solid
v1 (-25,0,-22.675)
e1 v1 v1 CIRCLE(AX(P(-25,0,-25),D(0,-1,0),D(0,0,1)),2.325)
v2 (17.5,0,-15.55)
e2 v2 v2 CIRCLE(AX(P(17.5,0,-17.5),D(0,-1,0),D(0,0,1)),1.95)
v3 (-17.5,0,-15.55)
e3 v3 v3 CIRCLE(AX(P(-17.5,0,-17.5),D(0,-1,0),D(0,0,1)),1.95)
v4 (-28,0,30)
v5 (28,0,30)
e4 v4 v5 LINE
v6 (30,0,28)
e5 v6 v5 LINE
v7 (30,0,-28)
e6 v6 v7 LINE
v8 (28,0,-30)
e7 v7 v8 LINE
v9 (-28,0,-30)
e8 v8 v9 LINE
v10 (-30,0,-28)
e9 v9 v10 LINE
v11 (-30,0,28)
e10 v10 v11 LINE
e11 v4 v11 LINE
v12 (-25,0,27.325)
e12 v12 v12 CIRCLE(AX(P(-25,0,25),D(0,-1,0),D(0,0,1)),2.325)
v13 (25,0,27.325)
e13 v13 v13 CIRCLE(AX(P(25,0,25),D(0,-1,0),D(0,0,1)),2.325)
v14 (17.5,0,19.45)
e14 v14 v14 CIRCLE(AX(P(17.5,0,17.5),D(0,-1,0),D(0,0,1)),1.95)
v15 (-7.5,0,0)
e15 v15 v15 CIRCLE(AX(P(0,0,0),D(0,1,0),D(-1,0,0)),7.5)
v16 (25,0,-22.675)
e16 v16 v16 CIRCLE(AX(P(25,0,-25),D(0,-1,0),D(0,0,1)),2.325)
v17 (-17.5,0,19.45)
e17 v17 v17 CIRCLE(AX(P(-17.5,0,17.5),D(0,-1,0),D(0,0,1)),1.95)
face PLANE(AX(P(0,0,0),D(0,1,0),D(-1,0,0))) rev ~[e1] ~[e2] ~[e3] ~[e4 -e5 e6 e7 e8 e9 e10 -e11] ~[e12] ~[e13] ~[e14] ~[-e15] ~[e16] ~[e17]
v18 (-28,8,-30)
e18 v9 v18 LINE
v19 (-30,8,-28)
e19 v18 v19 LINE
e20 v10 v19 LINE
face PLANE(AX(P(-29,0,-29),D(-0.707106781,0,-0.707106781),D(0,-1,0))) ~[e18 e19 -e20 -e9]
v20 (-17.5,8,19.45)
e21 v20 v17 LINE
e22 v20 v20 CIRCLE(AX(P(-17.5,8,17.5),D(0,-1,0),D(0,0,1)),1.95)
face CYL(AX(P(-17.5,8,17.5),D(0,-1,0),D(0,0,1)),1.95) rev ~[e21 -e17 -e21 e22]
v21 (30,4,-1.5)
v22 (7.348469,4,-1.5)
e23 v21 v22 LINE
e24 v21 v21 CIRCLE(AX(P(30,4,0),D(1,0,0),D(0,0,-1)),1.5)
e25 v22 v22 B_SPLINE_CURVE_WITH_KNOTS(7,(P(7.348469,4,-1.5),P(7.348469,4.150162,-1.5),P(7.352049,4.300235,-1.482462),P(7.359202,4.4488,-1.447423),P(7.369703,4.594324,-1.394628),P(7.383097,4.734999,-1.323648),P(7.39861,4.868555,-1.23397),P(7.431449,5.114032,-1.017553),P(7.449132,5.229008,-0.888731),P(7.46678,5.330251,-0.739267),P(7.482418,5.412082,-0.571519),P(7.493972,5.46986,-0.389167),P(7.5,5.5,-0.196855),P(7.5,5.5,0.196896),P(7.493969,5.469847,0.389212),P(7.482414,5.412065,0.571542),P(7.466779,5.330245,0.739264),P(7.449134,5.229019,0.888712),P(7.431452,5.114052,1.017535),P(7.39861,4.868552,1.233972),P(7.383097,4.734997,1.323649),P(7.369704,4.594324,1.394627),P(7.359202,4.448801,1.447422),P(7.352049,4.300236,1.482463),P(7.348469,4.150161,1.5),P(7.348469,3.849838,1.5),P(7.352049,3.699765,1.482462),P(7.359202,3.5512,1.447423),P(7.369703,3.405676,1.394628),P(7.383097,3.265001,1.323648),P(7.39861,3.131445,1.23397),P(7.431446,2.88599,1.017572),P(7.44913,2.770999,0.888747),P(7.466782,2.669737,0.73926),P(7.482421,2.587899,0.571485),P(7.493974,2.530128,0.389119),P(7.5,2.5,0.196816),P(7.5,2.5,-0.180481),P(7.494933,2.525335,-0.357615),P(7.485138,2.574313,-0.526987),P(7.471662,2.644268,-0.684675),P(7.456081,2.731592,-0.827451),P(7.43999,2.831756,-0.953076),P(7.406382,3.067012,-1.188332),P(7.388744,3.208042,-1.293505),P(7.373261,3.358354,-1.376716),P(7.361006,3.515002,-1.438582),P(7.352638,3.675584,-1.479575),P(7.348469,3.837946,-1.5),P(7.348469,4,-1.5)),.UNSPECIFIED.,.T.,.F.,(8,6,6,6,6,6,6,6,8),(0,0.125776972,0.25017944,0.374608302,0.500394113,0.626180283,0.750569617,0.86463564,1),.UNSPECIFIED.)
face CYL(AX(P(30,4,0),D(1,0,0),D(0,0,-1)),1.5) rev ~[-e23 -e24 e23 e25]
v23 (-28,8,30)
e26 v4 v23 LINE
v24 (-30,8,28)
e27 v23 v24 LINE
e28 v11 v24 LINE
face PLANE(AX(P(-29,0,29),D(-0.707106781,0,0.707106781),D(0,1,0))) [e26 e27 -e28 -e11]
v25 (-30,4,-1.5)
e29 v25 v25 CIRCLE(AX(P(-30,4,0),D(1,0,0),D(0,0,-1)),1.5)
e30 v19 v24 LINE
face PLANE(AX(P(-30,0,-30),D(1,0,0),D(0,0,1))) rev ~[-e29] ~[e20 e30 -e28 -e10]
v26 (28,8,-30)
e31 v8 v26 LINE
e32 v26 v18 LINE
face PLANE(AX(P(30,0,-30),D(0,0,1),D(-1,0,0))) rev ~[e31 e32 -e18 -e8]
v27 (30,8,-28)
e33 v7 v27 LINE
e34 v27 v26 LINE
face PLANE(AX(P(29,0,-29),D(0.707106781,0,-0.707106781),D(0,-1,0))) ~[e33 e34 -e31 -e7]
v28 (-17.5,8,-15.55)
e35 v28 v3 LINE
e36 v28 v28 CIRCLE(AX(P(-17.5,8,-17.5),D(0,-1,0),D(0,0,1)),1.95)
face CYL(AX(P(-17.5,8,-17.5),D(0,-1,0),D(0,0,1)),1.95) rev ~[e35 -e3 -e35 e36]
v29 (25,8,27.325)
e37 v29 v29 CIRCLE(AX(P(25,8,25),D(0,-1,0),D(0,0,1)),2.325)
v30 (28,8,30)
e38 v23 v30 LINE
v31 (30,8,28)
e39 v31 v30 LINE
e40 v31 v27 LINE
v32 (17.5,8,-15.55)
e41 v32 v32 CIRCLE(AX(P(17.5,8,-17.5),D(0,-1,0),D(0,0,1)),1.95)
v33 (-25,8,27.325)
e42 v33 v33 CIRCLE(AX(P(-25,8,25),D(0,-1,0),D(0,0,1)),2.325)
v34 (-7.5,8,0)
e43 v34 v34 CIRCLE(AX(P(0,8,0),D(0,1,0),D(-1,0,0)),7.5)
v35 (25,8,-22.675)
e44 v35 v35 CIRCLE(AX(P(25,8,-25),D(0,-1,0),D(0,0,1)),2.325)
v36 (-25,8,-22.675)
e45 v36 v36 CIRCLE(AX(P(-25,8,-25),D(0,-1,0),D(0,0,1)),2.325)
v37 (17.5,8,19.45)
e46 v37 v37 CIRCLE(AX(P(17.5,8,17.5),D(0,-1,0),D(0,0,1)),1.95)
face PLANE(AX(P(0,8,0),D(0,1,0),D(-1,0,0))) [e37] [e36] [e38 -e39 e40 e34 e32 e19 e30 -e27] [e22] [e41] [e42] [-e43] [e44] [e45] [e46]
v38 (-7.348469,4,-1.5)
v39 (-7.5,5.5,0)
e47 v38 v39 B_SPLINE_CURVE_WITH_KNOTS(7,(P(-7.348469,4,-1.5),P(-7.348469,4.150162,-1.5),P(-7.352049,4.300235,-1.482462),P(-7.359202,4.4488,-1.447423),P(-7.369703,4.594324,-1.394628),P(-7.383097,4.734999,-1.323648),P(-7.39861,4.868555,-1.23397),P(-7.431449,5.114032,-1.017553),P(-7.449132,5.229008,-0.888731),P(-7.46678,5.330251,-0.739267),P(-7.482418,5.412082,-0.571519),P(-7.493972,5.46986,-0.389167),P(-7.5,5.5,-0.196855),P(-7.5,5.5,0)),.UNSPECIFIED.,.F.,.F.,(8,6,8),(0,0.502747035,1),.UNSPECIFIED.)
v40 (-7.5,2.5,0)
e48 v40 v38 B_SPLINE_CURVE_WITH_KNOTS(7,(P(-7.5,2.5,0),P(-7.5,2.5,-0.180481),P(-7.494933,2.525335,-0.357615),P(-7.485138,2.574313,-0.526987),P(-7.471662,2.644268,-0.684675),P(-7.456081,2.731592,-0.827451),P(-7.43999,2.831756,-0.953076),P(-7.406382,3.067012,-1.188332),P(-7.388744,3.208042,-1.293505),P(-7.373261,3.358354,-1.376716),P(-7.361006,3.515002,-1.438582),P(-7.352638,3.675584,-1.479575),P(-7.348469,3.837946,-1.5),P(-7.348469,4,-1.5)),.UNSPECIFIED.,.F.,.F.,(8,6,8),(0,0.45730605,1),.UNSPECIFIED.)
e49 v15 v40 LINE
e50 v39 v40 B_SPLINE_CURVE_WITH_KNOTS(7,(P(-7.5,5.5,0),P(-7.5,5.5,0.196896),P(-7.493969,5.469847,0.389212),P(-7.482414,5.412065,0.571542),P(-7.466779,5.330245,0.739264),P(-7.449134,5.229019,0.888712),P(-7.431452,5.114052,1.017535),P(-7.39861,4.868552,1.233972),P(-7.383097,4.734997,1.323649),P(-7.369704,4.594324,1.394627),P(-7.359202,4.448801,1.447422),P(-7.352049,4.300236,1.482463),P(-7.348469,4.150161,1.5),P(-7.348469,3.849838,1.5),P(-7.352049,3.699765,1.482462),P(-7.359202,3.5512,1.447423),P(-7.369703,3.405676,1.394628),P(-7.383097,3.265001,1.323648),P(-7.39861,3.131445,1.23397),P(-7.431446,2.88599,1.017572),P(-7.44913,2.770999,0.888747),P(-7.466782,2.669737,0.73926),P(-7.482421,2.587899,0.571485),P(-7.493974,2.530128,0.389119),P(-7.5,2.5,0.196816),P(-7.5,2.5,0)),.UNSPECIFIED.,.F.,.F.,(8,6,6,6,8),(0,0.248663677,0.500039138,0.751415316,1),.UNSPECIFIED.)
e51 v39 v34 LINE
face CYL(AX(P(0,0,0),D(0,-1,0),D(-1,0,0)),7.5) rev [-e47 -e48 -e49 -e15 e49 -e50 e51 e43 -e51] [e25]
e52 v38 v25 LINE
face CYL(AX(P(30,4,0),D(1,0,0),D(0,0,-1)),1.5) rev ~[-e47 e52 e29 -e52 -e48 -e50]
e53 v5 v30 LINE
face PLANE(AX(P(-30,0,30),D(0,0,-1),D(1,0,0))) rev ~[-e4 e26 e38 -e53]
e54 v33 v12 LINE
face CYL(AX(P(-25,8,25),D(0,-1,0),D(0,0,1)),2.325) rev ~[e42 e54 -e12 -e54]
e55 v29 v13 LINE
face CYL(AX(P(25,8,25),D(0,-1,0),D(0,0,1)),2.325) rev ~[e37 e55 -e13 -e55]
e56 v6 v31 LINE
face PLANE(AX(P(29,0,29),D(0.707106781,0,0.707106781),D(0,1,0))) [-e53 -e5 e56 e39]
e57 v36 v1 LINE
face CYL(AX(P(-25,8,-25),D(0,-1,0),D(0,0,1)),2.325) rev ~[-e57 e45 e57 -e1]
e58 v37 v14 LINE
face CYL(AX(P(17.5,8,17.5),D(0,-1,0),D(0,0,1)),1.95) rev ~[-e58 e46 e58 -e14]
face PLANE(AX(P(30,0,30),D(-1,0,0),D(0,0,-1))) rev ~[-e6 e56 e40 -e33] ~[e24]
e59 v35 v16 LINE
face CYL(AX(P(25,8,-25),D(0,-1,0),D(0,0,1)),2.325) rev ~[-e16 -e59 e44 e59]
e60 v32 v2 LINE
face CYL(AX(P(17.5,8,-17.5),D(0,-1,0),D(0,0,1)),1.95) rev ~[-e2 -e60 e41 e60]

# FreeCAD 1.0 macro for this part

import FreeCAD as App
import Part
import Sketcher

V = App.Vector


def edges_at(feature, points):
    """Names of the edges that pass closest to the given points."""
    edges = feature.Shape.Edges
    near = lambda p: min(range(len(edges)), key=lambda i: edges[i].distToShape(Part.Vertex(*p))[0])
    return sorted({f"Edge{near(p) + 1}" for p in points})

doc = App.newDocument("Part")
body = doc.addObject("PartDesign::Body", "Body")

# Sketch on XZ plane
sketch1 = body.newObject("Sketcher::SketchObject", "Sketch")
sketch1.AttachmentSupport = (doc.getObject("XZ_Plane"), [""])
sketch1.MapMode = "FlatFace"
sketch1.addGeometry([
    Part.LineSegment(V(30, 30, 0), V(30, -30, 0)),  # 0
    Part.LineSegment(V(30, -30, 0), V(-30, -30, 0)),  # 1
    Part.LineSegment(V(-30, -30, 0), V(-30, 30, 0)),  # 2
    Part.LineSegment(V(-30, 30, 0), V(30, 30, 0)),  # 3
    Part.Circle(V(0, 0, 0), V(0, 0, 1), 8),  # 4
], False)
sketch1.addConstraint([
    Sketcher.Constraint("Coincident", 0, 2, 1, 1),
    Sketcher.Constraint("Coincident", 1, 2, 2, 1),
    Sketcher.Constraint("Coincident", 2, 2, 3, 1),
    Sketcher.Constraint("Coincident", 3, 2, 0, 1),
    Sketcher.Constraint("Vertical", 0),
    Sketcher.Constraint("Horizontal", 1),
    Sketcher.Constraint("Vertical", 2),
    Sketcher.Constraint("Horizontal", 3),
    Sketcher.Constraint("Coincident", 4, 3, -1, 1),
    Sketcher.Constraint("Symmetric", 0, 2, 2, 2, -1, 1),
    Sketcher.Constraint("Equal", 3, 0),
    Sketcher.Constraint("Diameter", 4, 15.0),
    Sketcher.Constraint("DistanceX", 1, 2, 1, 1, 60.0),
])
pad1 = body.newObject("PartDesign::Pad", "Pad")
pad1.Profile = sketch1
pad1.Length = 8
pad1.Reversed = True

# Sketch on XZ plane
sketch2 = body.newObject("Sketcher::SketchObject", "Sketch001")
sketch2.AttachmentSupport = (doc.getObject("XZ_Plane"), [""])
sketch2.MapMode = "FlatFace"
sketch2.AttachmentOffset = App.Placement(V(0, 0, -8), App.Rotation())
sketch2.addGeometry([
    Part.Circle(V(-17.5, 17.5, 0), V(0, 0, 1), 1.9),
    Part.Circle(V(-17.5, -17.5, 0), V(0, 0, 1), 1.9),
    Part.Circle(V(17.5, -17.5, 0), V(0, 0, 1), 1.9),
    Part.Circle(V(17.5, 17.5, 0), V(0, 0, 1), 1.9),
], False)
sketch2.addConstraint([
    Sketcher.Constraint("Equal", 0, 1),
    Sketcher.Constraint("Equal", 1, 2),
    Sketcher.Constraint("Equal", 2, 3),
    Sketcher.Constraint("Symmetric", 0, 3, 2, 3, -1, 1),
    Sketcher.Constraint("Symmetric", 1, 3, 3, 3, -1, 1),
    Sketcher.Constraint("Symmetric", 1, 3, 2, 3, -2),
    Sketcher.Constraint("Diameter", 0, 3.9),
    Sketcher.Constraint("DistanceY", 1, 3, 0, 3, 35.0),
    Sketcher.Constraint("DistanceX", 1, 3, 2, 3, 35.0),
])
doc.recompute()
hole = body.newObject("PartDesign::Hole", "Hole")
hole.Profile = sketch2
hole.ThreadType = "None"
hole.Diameter = 3.9
hole.DepthType = "Dimension"
hole.Depth = 10
hole.DrillPoint = "Angled"
hole.DrillPointAngle = 118
hole.Reversed = True
doc.recompute()

chamfer = body.newObject("PartDesign::Chamfer", "Chamfer")
chamfer.Base = (hole, edges_at(hole, [
    (30, 4, 30),
    (30, 4, -30),
    (-30, 4, -30),
    (-30, 4, 30),
]))
chamfer.Size = 2

# Sketch on XZ plane
sketch3 = body.newObject("Sketcher::SketchObject", "Sketch002")
sketch3.AttachmentSupport = (doc.getObject("XZ_Plane"), [""])
sketch3.MapMode = "FlatFace"
sketch3.AttachmentOffset = App.Placement(V(0, 0, -8), App.Rotation())
sketch3.addGeometry([
    Part.Circle(V(-25, -25, 0), V(0, 0, 1), 2.3),
    Part.Circle(V(25, -25, 0), V(0, 0, 1), 2.3),
    Part.Circle(V(25, 25, 0), V(0, 0, 1), 2.3),
    Part.Circle(V(-25, 25, 0), V(0, 0, 1), 2.3),
], False)
sketch3.addConstraint([
    Sketcher.Constraint("Equal", 0, 1),
    Sketcher.Constraint("Equal", 1, 2),
    Sketcher.Constraint("Equal", 2, 3),
    Sketcher.Constraint("Symmetric", 0, 3, 2, 3, -1, 1),
    Sketcher.Constraint("Symmetric", 1, 3, 3, 3, -1, 1),
    Sketcher.Constraint("Symmetric", 0, 3, 1, 3, -2),
    Sketcher.Constraint("Diameter", 0, 4.65),
    Sketcher.Constraint("DistanceX", 0, 3, -1, 1, 25.0),
    Sketcher.Constraint("DistanceY", 0, 3, -1, 1, 25.0),
])
doc.recompute()
hole2 = body.newObject("PartDesign::Hole", "Hole001")
hole2.Profile = sketch3
hole2.ThreadType = "None"
hole2.Diameter = 4.65
hole2.DepthType = "ThroughAll"
hole2.Reversed = True

# Sketch on YZ plane
sketch4 = body.newObject("Sketcher::SketchObject", "Sketch003")
sketch4.AttachmentSupport = (doc.getObject("YZ_Plane"), [""])
sketch4.MapMode = "FlatFace"
sketch4.AttachmentOffset = App.Placement(V(0, 0, 30), App.Rotation())
sketch4.addGeometry(Part.Circle(V(4, 0, 0), V(0, 0, 1), 1.5), False)
sketch4.addConstraint([
    Sketcher.Constraint("PointOnObject", 0, 3, -1),
    Sketcher.Constraint("Diameter", 0, 3.0),
    Sketcher.Constraint("DistanceX", -1, 1, 0, 3, 4.0),
])
pocket1 = body.newObject("PartDesign::Pocket", "Pocket")
pocket1.Profile = sketch4
pocket1.Type = "ThroughAll"

doc.recompute()
